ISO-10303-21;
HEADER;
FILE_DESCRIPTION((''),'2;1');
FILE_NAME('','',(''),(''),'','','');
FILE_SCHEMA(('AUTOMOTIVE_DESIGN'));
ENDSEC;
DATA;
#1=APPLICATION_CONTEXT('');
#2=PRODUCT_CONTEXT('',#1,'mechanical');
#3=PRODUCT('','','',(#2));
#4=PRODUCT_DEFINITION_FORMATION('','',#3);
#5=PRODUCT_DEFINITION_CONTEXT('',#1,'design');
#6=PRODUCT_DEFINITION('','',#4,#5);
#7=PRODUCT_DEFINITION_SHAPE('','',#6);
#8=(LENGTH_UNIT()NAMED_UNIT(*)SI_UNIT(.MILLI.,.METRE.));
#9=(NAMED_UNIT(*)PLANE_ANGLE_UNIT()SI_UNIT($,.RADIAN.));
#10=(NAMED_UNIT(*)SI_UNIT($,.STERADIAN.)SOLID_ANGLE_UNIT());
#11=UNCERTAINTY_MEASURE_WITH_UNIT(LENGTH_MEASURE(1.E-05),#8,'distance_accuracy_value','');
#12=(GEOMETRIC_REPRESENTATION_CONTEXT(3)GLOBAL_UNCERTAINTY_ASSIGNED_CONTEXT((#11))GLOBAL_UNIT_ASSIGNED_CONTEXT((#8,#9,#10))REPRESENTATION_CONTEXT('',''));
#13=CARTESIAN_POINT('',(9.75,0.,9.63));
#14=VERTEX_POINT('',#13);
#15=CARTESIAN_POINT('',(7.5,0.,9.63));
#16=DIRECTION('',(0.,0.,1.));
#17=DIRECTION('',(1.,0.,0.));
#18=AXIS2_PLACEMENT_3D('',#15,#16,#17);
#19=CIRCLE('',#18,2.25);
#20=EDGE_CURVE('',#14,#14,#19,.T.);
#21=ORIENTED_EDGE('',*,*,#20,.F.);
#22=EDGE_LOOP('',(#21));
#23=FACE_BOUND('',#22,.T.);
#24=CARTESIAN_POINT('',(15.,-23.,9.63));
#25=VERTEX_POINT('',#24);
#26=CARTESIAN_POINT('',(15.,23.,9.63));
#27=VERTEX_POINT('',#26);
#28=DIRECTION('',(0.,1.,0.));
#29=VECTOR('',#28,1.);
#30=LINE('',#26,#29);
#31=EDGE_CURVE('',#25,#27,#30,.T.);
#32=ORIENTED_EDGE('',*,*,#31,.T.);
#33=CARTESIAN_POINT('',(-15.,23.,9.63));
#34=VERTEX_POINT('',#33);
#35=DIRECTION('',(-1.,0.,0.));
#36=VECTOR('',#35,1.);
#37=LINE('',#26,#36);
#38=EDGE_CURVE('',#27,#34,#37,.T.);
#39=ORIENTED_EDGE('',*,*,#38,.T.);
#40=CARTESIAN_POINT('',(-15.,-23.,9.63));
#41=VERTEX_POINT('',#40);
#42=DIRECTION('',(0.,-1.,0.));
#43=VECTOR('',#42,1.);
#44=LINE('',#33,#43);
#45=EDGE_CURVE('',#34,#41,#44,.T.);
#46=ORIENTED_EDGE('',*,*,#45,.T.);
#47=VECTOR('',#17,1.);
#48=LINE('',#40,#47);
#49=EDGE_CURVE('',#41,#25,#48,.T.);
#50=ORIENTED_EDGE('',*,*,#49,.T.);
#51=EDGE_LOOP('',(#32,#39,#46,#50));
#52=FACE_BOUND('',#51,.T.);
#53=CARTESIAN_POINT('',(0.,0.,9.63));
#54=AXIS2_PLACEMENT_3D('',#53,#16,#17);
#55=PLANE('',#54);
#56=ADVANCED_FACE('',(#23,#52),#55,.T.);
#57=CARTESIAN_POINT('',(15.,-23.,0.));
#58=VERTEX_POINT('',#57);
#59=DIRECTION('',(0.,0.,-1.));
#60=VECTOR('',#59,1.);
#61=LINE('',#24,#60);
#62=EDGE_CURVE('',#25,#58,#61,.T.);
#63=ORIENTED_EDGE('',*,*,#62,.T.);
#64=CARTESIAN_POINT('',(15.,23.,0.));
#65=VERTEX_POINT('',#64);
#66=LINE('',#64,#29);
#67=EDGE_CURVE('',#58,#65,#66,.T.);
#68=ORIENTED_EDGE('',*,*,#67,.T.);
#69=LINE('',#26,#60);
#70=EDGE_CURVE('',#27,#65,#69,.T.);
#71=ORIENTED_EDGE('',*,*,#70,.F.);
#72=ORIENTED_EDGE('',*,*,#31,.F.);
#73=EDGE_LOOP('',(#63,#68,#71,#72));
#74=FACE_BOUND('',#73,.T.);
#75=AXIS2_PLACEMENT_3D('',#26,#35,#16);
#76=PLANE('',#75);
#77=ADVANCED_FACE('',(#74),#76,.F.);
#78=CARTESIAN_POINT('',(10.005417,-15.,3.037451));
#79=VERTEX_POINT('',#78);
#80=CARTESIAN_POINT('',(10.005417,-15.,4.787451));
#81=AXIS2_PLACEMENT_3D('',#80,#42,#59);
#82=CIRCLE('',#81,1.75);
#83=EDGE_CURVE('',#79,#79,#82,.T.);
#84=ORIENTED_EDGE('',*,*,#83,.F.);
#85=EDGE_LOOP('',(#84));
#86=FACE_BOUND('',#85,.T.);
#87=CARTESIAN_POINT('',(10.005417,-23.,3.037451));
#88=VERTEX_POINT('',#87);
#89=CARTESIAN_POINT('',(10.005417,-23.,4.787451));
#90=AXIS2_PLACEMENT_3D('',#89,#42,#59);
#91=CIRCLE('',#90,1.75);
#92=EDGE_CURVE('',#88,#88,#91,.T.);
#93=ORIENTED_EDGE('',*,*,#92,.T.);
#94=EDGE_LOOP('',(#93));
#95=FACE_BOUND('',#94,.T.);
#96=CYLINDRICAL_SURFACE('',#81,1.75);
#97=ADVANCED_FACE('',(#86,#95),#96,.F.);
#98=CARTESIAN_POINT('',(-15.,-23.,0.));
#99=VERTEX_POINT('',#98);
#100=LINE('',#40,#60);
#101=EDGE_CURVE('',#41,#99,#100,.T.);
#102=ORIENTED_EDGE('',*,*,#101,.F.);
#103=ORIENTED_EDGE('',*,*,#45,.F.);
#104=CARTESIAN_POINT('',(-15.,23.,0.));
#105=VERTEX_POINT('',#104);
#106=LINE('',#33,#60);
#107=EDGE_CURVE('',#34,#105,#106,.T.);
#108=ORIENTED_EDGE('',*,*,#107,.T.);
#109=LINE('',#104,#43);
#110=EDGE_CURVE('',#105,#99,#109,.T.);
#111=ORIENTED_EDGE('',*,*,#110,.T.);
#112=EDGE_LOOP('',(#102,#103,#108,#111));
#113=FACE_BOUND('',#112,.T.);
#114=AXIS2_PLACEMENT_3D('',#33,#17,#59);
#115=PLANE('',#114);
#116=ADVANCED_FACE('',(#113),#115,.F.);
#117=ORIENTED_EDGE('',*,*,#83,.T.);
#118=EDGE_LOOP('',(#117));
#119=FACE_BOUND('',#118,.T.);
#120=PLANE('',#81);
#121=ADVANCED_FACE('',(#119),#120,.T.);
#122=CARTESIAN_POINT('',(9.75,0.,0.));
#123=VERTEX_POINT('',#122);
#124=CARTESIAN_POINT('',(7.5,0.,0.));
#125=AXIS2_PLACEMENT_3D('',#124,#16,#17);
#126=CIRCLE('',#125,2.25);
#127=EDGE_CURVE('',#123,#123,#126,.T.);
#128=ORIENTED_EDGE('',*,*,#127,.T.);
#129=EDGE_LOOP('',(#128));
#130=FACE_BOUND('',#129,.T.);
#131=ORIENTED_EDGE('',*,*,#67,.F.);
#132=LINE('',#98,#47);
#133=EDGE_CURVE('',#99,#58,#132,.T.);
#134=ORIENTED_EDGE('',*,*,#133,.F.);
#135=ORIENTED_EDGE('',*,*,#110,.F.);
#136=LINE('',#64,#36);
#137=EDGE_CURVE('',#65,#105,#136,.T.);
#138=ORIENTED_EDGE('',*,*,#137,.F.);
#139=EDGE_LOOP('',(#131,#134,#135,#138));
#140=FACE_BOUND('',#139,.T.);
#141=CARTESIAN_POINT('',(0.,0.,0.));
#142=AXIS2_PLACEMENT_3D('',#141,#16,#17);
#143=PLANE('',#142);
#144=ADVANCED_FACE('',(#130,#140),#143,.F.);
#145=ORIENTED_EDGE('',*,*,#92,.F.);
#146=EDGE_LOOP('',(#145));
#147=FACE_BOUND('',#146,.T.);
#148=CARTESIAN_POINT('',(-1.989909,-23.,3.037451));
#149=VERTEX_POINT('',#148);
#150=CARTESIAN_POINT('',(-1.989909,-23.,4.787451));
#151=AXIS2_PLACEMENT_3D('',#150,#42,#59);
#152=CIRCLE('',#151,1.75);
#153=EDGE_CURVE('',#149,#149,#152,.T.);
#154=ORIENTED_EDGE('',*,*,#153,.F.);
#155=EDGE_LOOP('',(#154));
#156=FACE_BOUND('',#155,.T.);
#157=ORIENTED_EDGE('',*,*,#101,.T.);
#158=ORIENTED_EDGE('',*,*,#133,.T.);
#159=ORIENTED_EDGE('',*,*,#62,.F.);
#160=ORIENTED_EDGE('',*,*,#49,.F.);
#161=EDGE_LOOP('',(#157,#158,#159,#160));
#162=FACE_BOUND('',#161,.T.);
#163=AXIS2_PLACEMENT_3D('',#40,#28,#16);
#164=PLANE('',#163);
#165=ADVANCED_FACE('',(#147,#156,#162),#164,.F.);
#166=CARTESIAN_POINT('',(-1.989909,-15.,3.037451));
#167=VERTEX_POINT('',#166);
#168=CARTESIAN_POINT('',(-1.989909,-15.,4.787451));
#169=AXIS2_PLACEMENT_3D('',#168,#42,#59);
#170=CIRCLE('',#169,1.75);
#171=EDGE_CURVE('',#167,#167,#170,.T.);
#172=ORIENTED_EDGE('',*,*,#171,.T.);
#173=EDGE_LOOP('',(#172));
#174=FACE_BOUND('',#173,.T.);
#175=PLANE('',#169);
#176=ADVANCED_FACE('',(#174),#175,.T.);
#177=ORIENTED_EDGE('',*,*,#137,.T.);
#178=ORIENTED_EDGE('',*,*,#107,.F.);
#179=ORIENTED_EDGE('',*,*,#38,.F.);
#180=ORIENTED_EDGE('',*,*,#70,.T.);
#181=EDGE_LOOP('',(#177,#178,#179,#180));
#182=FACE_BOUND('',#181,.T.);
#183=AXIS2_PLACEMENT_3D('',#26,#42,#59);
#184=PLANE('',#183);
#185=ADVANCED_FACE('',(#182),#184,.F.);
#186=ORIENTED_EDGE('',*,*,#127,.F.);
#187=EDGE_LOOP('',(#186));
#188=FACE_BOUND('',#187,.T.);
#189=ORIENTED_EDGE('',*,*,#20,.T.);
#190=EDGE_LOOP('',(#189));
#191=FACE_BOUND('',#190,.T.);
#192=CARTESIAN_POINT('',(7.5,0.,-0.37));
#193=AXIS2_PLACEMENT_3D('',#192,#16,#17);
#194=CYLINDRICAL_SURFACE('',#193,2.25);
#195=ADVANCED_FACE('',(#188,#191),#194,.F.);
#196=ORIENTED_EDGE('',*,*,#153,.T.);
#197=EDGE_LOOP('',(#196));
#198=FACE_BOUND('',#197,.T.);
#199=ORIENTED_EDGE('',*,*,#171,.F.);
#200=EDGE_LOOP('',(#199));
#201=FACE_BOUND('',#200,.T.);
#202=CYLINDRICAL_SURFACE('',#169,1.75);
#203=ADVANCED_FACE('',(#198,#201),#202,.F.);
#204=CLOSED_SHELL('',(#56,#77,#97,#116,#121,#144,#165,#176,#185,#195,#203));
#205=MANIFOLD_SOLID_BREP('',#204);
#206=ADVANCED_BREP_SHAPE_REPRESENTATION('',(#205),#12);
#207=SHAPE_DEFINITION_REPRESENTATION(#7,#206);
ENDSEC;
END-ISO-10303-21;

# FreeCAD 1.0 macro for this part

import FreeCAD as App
import Part
import Sketcher
Q = App.Units.Quantity

doc = App.newDocument("Part")
body = doc.addObject("PartDesign::Body", "Body")

sketch1 = body.newObject("Sketcher::SketchObject", "Sketch")
sketch1.AttachmentSupport = (doc.getObject("XY_Plane"), [""])
sketch1.MapMode = "FlatFace"
sketch1.addGeometry([
    Part.LineSegment(App.Vector(-15, 23, 0), App.Vector(-15, -23, 0)),
    Part.LineSegment(App.Vector(-15, -23, 0), App.Vector(15, -23, 0)),
    Part.LineSegment(App.Vector(15, -23, 0), App.Vector(15, 23, 0)),
    Part.LineSegment(App.Vector(15, 23, 0), App.Vector(-15, 23, 0)),
], False)
sketch1.addConstraint([
    Sketcher.Constraint("Coincident", 0, 2, 1, 1),
    Sketcher.Constraint("Coincident", 1, 2, 2, 1),
    Sketcher.Constraint("Coincident", 2, 2, 3, 1),
    Sketcher.Constraint("Coincident", 3, 2, 0, 1),
    Sketcher.Constraint("Vertical", 0),
    Sketcher.Constraint("Horizontal", 1),
    Sketcher.Constraint("Vertical", 2),
    Sketcher.Constraint("Horizontal", 3),
    Sketcher.Constraint("Symmetric", 0, 2, 2, 2, -1, 1),
    Sketcher.Constraint("DistanceX", 1, 1, 1, 2, Q("30 mm")),
    Sketcher.Constraint("DistanceY", 0, 2, 0, 1, Q("46 mm")),
])
pad1 = body.newObject("PartDesign::Pad", "Pad")
pad1.Profile = sketch1
pad1.Length = 9.63

sketch2 = body.newObject("Sketcher::SketchObject", "Sketch001")
sketch2.AttachmentSupport = (doc.getObject("XZ_Plane"), [""])
sketch2.MapMode = "FlatFace"
sketch2.AttachmentOffset = App.Placement(App.Vector(0, 0, 23), App.Rotation())
sketch2.addGeometry([
    Part.Circle(App.Vector(-2, 4.8, 0), App.Vector(0, 0, 1), 1.8),
    Part.Circle(App.Vector(10, 4.8, 0), App.Vector(0, 0, 1), 1.8),
], False)
sketch2.addConstraint([
    Sketcher.Constraint("Equal", 0, 1),
    Sketcher.Constraint("Horizontal", 0, 3, 1, 3),
    Sketcher.Constraint("Diameter", 0, Q("3.5 mm")),
    Sketcher.Constraint("DistanceX", 0, 3, -1, 1, Q("1.989909 mm")),
    Sketcher.Constraint("DistanceY", -1, 1, 0, 3, Q("4.787451 mm")),
    Sketcher.Constraint("DistanceX", -1, 1, 1, 3, Q("10.005417 mm")),
])
pocket1 = body.newObject("PartDesign::Pocket", "Pocket")
pocket1.Profile = sketch2
pocket1.Length = 8

sketch3 = body.newObject("Sketcher::SketchObject", "Sketch002")
sketch3.AttachmentSupport = (doc.getObject("XY_Plane"), [""])
sketch3.MapMode = "FlatFace"
sketch3.AttachmentOffset = App.Placement(App.Vector(0, 0, 9.63), App.Rotation())
sketch3.addGeometry(Part.Circle(App.Vector(7.5, 0, 0), App.Vector(0, 0, 1), 2.2), False)
sketch3.addConstraint([
    Sketcher.Constraint("PointOnObject", 0, 3, -1),
    Sketcher.Constraint("Diameter", 0, Q("4.5 mm")),
    Sketcher.Constraint("DistanceX", -1, 1, 0, 3, Q("7.5 mm")),
])
pocket2 = body.newObject("PartDesign::Pocket", "Pocket001")
pocket2.Profile = sketch3
pocket2.Length = 10

doc.recompute()
